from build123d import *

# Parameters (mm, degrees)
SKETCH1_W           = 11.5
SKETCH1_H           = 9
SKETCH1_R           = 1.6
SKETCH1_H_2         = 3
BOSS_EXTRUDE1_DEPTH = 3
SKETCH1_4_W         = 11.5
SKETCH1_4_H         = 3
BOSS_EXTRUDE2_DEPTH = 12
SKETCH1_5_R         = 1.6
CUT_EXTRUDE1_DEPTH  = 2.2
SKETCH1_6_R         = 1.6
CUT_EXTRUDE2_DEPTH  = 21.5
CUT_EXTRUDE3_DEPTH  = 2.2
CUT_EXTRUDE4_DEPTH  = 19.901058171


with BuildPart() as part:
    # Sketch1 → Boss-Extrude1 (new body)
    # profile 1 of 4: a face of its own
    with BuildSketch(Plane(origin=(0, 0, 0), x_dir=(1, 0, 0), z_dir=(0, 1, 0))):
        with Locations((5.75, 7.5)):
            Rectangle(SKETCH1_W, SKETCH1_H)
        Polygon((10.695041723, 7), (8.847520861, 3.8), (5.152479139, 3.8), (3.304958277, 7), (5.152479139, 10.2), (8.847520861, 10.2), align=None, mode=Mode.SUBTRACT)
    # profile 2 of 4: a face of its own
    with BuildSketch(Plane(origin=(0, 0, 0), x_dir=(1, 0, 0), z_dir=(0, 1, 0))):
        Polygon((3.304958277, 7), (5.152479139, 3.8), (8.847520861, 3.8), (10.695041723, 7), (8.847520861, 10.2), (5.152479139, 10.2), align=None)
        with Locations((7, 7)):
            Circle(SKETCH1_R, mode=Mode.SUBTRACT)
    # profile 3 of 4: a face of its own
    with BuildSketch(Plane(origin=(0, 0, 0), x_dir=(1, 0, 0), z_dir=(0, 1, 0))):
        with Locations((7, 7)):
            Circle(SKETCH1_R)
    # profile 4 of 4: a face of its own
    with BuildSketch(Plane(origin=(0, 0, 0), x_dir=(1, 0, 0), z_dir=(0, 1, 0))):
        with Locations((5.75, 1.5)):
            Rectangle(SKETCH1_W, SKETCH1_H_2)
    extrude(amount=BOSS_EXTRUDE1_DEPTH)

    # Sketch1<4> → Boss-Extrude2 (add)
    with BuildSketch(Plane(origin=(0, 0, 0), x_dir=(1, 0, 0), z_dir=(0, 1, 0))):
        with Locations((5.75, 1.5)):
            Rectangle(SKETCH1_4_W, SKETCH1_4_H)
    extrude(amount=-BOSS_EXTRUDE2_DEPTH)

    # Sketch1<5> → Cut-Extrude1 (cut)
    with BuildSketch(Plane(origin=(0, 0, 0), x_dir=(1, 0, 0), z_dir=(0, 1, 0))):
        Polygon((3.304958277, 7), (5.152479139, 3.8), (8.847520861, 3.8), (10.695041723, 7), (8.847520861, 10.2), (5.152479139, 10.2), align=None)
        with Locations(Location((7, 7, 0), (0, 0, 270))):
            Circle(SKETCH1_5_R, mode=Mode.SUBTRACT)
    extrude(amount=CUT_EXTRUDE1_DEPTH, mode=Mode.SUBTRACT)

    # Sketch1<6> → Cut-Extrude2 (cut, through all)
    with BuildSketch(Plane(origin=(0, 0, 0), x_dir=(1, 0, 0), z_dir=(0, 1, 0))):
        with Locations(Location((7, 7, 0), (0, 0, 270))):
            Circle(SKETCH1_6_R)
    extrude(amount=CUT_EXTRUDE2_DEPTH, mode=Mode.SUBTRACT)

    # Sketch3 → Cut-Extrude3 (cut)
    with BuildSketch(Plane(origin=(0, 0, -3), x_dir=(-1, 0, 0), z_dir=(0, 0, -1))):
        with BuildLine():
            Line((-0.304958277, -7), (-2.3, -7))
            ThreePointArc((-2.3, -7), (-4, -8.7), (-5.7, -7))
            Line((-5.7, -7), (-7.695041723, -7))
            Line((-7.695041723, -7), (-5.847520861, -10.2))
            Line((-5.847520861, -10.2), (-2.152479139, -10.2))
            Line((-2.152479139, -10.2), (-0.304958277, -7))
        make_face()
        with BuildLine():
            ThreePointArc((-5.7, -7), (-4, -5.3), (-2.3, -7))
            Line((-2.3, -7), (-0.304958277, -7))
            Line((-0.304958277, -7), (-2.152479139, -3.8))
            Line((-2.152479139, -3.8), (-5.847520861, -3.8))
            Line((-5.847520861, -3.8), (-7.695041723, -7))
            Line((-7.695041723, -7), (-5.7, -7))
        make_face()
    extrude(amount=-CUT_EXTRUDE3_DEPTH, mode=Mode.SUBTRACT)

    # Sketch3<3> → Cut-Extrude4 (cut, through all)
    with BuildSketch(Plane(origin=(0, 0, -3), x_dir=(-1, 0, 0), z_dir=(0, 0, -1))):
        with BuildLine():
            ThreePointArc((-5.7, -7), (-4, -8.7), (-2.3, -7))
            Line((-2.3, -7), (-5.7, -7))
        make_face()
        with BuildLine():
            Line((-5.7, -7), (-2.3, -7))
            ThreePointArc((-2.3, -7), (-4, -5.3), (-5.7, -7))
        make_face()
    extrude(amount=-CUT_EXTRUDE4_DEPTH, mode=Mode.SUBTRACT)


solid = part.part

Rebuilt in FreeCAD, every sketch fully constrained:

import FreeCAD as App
import Part
import Sketcher

V = App.Vector
Q = App.Units.Quantity

doc = App.newDocument("Part")
body = doc.addObject("PartDesign::Body", "Body")

# Sketch on XZ plane
sketch1 = body.newObject("Sketcher::SketchObject", "Sketch")
sketch1.AttachmentSupport = (doc.getObject("XZ_Plane"), [""])
sketch1.MapMode = "FlatFace"
sketch1.addGeometry([
    Part.LineSegment(V(0, -12, 0), V(0, 0, 0)),
    Part.LineSegment(V(0, 0, 0), V(12, 0, 0)),
    Part.LineSegment(V(12, 0, 0), V(12, -12, 0)),
    Part.LineSegment(V(12, -12, 0), V(0, -12, 0)),
], False)
sketch1.addConstraint([
    Sketcher.Constraint("Coincident", 0, 2, 1, 1),
    Sketcher.Constraint("Coincident", 1, 2, 2, 1),
    Sketcher.Constraint("Coincident", 2, 2, 3, 1),
    Sketcher.Constraint("Coincident", 3, 2, 0, 1),
    Sketcher.Constraint("Vertical", 0),
    Sketcher.Constraint("Horizontal", 1),
    Sketcher.Constraint("Vertical", 2),
    Sketcher.Constraint("Horizontal", 3),
    Sketcher.Constraint("Coincident", 0, 2, -1, 1),
    Sketcher.Constraint("DistanceY", 0, 1, 0, 2, 12.0),
    Sketcher.Constraint("DistanceX", 1, 1, 1, 2, 11.5),
])
pad1 = body.newObject("PartDesign::Pad", "Pad")
pad1.Profile = sketch1
pad1.Length = 3
pad1.Reversed = True

# Sketch on XZ plane
sketch2 = body.newObject("Sketcher::SketchObject", "Sketch001")
sketch2.AttachmentSupport = (doc.getObject("XZ_Plane"), [""])
sketch2.MapMode = "FlatFace"
sketch2.addGeometry([
    Part.LineSegment(V(0, -3, 0), V(0, 0, 0)),
    Part.LineSegment(V(0, 0, 0), V(11.5, 0, 0)),
    Part.LineSegment(V(11.5, 0, 0), V(11.5, -3, 0)),
    Part.LineSegment(V(11.5, -3, 0), V(0, -3, 0)),
], False)
sketch2.addConstraint([
    Sketcher.Constraint("Coincident", 0, 2, 1, 1),
    Sketcher.Constraint("Coincident", 1, 2, 2, 1),
    Sketcher.Constraint("Coincident", 2, 2, 3, 1),
    Sketcher.Constraint("Coincident", 3, 2, 0, 1),
    Sketcher.Constraint("Vertical", 0),
    Sketcher.Constraint("Horizontal", 1),
    Sketcher.Constraint("Vertical", 2),
    Sketcher.Constraint("Horizontal", 3),
    Sketcher.Constraint("Coincident", 0, 2, -1, 1),
    Sketcher.Constraint("DistanceY", 0, 1, 0, 2, 3.0),
    Sketcher.Constraint("DistanceX", 1, 1, 1, 2, 11.5),
])
pad2 = body.newObject("PartDesign::Pad", "Pad001")
pad2.Profile = sketch2
pad2.Length = 12

# Sketch on XZ plane
sketch3 = body.newObject("Sketcher::SketchObject", "Sketch002")
sketch3.AttachmentSupport = (doc.getObject("XZ_Plane"), [""])
sketch3.MapMode = "FlatFace"
sketch3.addGeometry([
    Part.LineSegment(V(3.3, -7, 0), V(5.2, -3.8, 0)),  # 0
    Part.LineSegment(V(5.2, -3.8, 0), V(8.8, -3.8, 0)),  # 1
    Part.LineSegment(V(8.8, -3.8, 0), V(10.7, -7, 0)),  # 2
    Part.LineSegment(V(10.7, -7, 0), V(8.8, -10.2, 0)),  # 3
    Part.LineSegment(V(8.8, -10.2, 0), V(5.2, -10.2, 0)),  # 4
    Part.LineSegment(V(5.2, -10.2, 0), V(3.3, -7, 0)),  # 5
    Part.Circle(V(7, -7, 0), V(0, 0, 1), 1.6),  # 6
], False)
sketch3.addConstraint([
    Sketcher.Constraint("Coincident", 0, 2, 1, 1),
    Sketcher.Constraint("Coincident", 1, 2, 2, 1),
    Sketcher.Constraint("Coincident", 2, 2, 3, 1),
    Sketcher.Constraint("Coincident", 3, 2, 4, 1),
    Sketcher.Constraint("Coincident", 4, 2, 5, 1),
    Sketcher.Constraint("Coincident", 5, 2, 0, 1),
    Sketcher.Constraint("Horizontal", 1),
    Sketcher.Constraint("Horizontal", 4),
    Sketcher.Constraint("Parallel", 0, 3),
    Sketcher.Constraint("Parallel", 2, 5),
    Sketcher.Constraint("Horizontal", 6, 3, 2, 2),
    Sketcher.Constraint("Horizontal", 2, 2, 5, 2),
    Sketcher.Constraint("Vertical", 1, 2, 3, 2),
    Sketcher.Constraint("Vertical", 0, 2, 4, 2),
    Sketcher.Constraint("Diameter", 6, 3.2),
    Sketcher.Constraint("Angle", 0, Q("60 deg")),
    Sketcher.Constraint("DistanceX", -1, 1, 6, 3, 7.0),
    Sketcher.Constraint("DistanceY", 6, 3, -1, 1, 7.0),
    Sketcher.Constraint("DistanceY", 0, 2, -1, 1, 3.8),
    Sketcher.Constraint("DistanceX", 1, 1, 1, 2, 3.695042),
    Sketcher.Constraint("DistanceX", -1, 1, 0, 2, 5.152479),
])
pocket1 = body.newObject("PartDesign::Pocket", "Pocket")
pocket1.Profile = sketch3
pocket1.Length = 2.2

# Sketch on XZ plane
sketch4 = body.newObject("Sketcher::SketchObject", "Sketch003")
sketch4.AttachmentSupport = (doc.getObject("XZ_Plane"), [""])
sketch4.MapMode = "FlatFace"
sketch4.addGeometry(Part.Circle(V(7, -7, 0), V(0, 0, 1), 1.6), False)
sketch4.addConstraint([
    Sketcher.Constraint("Diameter", 0, 3.2),
    Sketcher.Constraint("DistanceX", -1, 1, 0, 3, 7.0),
    Sketcher.Constraint("DistanceY", 0, 3, -1, 1, 7.0),
])
pocket2 = body.newObject("PartDesign::Pocket", "Pocket001")
pocket2.Profile = sketch4
pocket2.Type = "ThroughAll"

# Sketch on XY plane
sketch5 = body.newObject("Sketcher::SketchObject", "Sketch004")
sketch5.AttachmentSupport = (doc.getObject("XY_Plane"), [""])
sketch5.MapMode = "FlatFace"
sketch5.AttachmentOffset = App.Placement(V(0, 0, -3), App.Rotation())
sketch5.addGeometry([
    Part.LineSegment(V(7.7, -7, 0), V(5.8, -10.2, 0)),  # 0
    Part.LineSegment(V(5.8, -10.2, 0), V(2.2, -10.2, 0)),  # 1
    Part.LineSegment(V(2.2, -10.2, 0), V(0.3, -7, 0)),  # 2
    Part.LineSegment(V(0.3, -7, 0), V(2.2, -3.8, 0)),  # 3
    Part.LineSegment(V(2.2, -3.8, 0), V(5.8, -3.8, 0)),  # 4
    Part.LineSegment(V(5.8, -3.8, 0), V(7.7, -7, 0)),  # 5
    Part.Circle(V(4, -7, 0), V(0, 0, 1), 1.7),  # 6
], False)
sketch5.addConstraint([
    Sketcher.Constraint("Coincident", 0, 2, 1, 1),
    Sketcher.Constraint("Coincident", 1, 2, 2, 1),
    Sketcher.Constraint("Coincident", 2, 2, 3, 1),
    Sketcher.Constraint("Coincident", 3, 2, 4, 1),
    Sketcher.Constraint("Coincident", 4, 2, 5, 1),
    Sketcher.Constraint("Coincident", 5, 2, 0, 1),
    Sketcher.Constraint("Horizontal", 1),
    Sketcher.Constraint("Horizontal", 4),
    Sketcher.Constraint("Parallel", 0, 3),
    Sketcher.Constraint("Parallel", 2, 5),
    Sketcher.Constraint("Horizontal", 6, 3, 2, 2),
    Sketcher.Constraint("Horizontal", 2, 2, 5, 2),
    Sketcher.Constraint("Vertical", 1, 2, 3, 2),
    Sketcher.Constraint("Vertical", 0, 2, 4, 2),
    Sketcher.Constraint("Diameter", 6, 3.4),
    Sketcher.Constraint("Angle", 0, Q("-120 deg")),
    Sketcher.Constraint("DistanceX", -1, 1, 6, 3, 4.0),
    Sketcher.Constraint("DistanceY", 6, 3, -1, 1, 7.0),
    Sketcher.Constraint("DistanceY", 0, 2, -1, 1, 10.2),
    Sketcher.Constraint("DistanceX", 1, 2, 1, 1, 3.695042),
    Sketcher.Constraint("DistanceX", -1, 1, 0, 2, 5.847521),
])
pocket3 = body.newObject("PartDesign::Pocket", "Pocket002")
pocket3.Profile = sketch5
pocket3.Length = 2.2
pocket3.Reversed = True

# Sketch on XY plane
sketch6 = body.newObject("Sketcher::SketchObject", "Sketch005")
sketch6.AttachmentSupport = (doc.getObject("XY_Plane"), [""])
sketch6.MapMode = "FlatFace"
sketch6.AttachmentOffset = App.Placement(V(0, 0, -3), App.Rotation())
sketch6.addGeometry(Part.Circle(V(4, -7, 0), V(0, 0, 1), 1.7), False)
sketch6.addConstraint([
    Sketcher.Constraint("Diameter", 0, 3.4),
    Sketcher.Constraint("DistanceX", -1, 1, 0, 3, 4.0),
    Sketcher.Constraint("DistanceY", 0, 3, -1, 1, 7.0),
])
pocket4 = body.newObject("PartDesign::Pocket", "Pocket003")
pocket4.Profile = sketch6
pocket4.Type = "ThroughAll"
pocket4.Reversed = True

doc.recompute()
